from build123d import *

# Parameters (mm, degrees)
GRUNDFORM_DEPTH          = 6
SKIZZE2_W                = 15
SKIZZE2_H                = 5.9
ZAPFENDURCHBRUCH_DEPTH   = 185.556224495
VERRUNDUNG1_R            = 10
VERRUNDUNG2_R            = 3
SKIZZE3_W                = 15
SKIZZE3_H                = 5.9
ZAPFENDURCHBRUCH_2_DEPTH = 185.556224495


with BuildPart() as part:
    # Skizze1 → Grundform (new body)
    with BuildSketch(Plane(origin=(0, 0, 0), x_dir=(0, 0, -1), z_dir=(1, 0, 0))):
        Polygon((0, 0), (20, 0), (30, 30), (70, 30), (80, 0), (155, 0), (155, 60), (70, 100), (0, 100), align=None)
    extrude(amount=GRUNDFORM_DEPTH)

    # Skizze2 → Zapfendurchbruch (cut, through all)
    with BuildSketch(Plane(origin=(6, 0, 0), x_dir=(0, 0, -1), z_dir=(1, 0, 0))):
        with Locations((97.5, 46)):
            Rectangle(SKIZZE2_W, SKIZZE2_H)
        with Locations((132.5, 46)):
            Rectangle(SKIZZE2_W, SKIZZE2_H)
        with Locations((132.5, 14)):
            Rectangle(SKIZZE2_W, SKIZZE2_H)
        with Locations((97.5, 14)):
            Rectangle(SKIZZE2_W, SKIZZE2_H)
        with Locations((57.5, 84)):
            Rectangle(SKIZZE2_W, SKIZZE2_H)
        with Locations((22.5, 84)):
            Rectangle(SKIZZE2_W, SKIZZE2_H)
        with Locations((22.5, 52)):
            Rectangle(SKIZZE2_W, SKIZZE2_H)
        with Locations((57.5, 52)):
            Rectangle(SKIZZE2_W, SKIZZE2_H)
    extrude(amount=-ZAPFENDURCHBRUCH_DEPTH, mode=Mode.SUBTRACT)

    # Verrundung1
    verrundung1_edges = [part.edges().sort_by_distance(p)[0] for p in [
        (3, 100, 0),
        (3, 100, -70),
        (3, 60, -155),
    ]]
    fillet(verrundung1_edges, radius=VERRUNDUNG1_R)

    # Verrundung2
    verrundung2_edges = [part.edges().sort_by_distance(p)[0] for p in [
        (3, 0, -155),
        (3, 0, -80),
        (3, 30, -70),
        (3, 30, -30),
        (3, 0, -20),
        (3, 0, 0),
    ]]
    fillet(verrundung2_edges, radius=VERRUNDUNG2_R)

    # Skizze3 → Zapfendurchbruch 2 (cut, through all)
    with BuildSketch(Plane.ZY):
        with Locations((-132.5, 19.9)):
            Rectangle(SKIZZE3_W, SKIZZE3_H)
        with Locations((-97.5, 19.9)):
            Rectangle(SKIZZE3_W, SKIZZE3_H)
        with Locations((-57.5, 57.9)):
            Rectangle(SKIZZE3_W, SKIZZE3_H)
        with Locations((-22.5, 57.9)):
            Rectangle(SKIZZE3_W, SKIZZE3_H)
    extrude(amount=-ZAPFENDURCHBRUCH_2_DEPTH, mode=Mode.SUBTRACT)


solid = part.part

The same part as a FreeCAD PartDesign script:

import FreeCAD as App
import Part
import Sketcher

V = App.Vector
Q = App.Units.Quantity


def edges_at(feature, points):
    """Names of the edges that pass closest to the given points."""
    edges = feature.Shape.Edges
    near = lambda p: min(range(len(edges)), key=lambda i: edges[i].distToShape(Part.Vertex(*p))[0])
    return sorted({f"Edge{near(p) + 1}" for p in points})

doc = App.newDocument("Part")
body = doc.addObject("PartDesign::Body", "Body")

# Sketch on YZ plane
sketch1 = doc.addObject("Sketcher::SketchObject", "Sketch")
body.addObject(sketch1)
sketch1.AttachmentSupport = (doc.YZ_Plane, [""])
sketch1.MapMode = "FlatFace"
sketch1.addGeometry([
    Part.LineSegment(V(0, 0, 0), V(0, -20, 0)),  # 0
    Part.LineSegment(V(0, -20, 0), V(30, -30, 0)),  # 1
    Part.LineSegment(V(30, -30, 0), V(30, -70, 0)),  # 2
    Part.LineSegment(V(30, -70, 0), V(0, -80, 0)),  # 3
    Part.LineSegment(V(0, -80, 0), V(0, -155, 0)),  # 4
    Part.LineSegment(V(0, -155, 0), V(60, -155, 0)),  # 5
    Part.LineSegment(V(60, -155, 0), V(100, -70, 0)),  # 6
    Part.LineSegment(V(100, -70, 0), V(100, 0, 0)),  # 7
    Part.LineSegment(V(100, 0, 0), V(0, 0, 0)),  # 8
], False)
sketch1.addConstraint([
    Sketcher.Constraint("Coincident", 0, 2, 1, 1),
    Sketcher.Constraint("Coincident", 1, 2, 2, 1),
    Sketcher.Constraint("Coincident", 2, 2, 3, 1),
    Sketcher.Constraint("Coincident", 3, 2, 4, 1),
    Sketcher.Constraint("Coincident", 4, 2, 5, 1),
    Sketcher.Constraint("Coincident", 5, 2, 6, 1),
    Sketcher.Constraint("Coincident", 6, 2, 7, 1),
    Sketcher.Constraint("Coincident", 7, 2, 8, 1),
    Sketcher.Constraint("Coincident", 8, 2, 0, 1),
    Sketcher.Constraint("Vertical", 0),
    Sketcher.Constraint("Vertical", 2),
    Sketcher.Constraint("Vertical", 4),
    Sketcher.Constraint("Horizontal", 5),
    Sketcher.Constraint("Vertical", 7),
    Sketcher.Constraint("Horizontal", 8),
    Sketcher.Constraint("Coincident", 8, 2, -1, 1),
    Sketcher.Constraint("PointOnObject", 3, 2, -2),
    Sketcher.Constraint("Horizontal", 2, 2, 6, 2),
    Sketcher.Constraint("Equal", 1, 3),
    Sketcher.Constraint("DistanceX", 5, 1, 5, 2, Q("60 mm")),
    Sketcher.Constraint("DistanceX", 8, 2, 8, 1, Q("100 mm")),
    Sketcher.Constraint("DistanceY", 0, 2, 0, 1, Q("20 mm")),
    Sketcher.Constraint("DistanceY", 2, 2, 2, 1, Q("40 mm")),
    Sketcher.Constraint("DistanceY", 4, 2, 4, 1, Q("75 mm")),
    Sketcher.Constraint("DistanceY", 7, 1, 7, 2, Q("70 mm")),
    Sketcher.Constraint("DistanceX", -1, 1, 1, 2, Q("30 mm")),
])
pad1 = doc.addObject("PartDesign::Pad", "Pad")
body.addObject(pad1)
pad1.Profile = sketch1
pad1.Length = 6

# Sketch on YZ plane
sketch2 = doc.addObject("Sketcher::SketchObject", "Sketch001")
body.addObject(sketch2)
sketch2.AttachmentSupport = (doc.YZ_Plane, [""])
sketch2.MapMode = "FlatFace"
sketch2.AttachmentOffset = App.Placement(V(0, 0, 6), App.Rotation())
sketch2.addGeometry([
    Part.LineSegment(V(49, -90, 0), V(43, -90, 0)),  # 0
    Part.LineSegment(V(43, -90, 0), V(43, -105, 0)),  # 1
    Part.LineSegment(V(43, -105, 0), V(49, -105, 0)),  # 2
    Part.LineSegment(V(49, -105, 0), V(49, -90, 0)),  # 3
    Part.LineSegment(V(49, -125, 0), V(43, -125, 0)),  # 4
    Part.LineSegment(V(43, -125, 0), V(43, -140, 0)),  # 5
    Part.LineSegment(V(43, -140, 0), V(49, -140, 0)),  # 6
    Part.LineSegment(V(49, -140, 0), V(49, -125, 0)),  # 7
    Part.LineSegment(V(17, -125, 0), V(11, -125, 0)),  # 8
    Part.LineSegment(V(11, -125, 0), V(11, -140, 0)),  # 9
    Part.LineSegment(V(11, -140, 0), V(17, -140, 0)),  # 10
    Part.LineSegment(V(17, -140, 0), V(17, -125, 0)),  # 11
    Part.LineSegment(V(17, -90, 0), V(11, -90, 0)),  # 12
    Part.LineSegment(V(11, -90, 0), V(11, -105, 0)),  # 13
    Part.LineSegment(V(11, -105, 0), V(17, -105, 0)),  # 14
    Part.LineSegment(V(17, -105, 0), V(17, -90, 0)),  # 15
    Part.LineSegment(V(87, -50, 0), V(81, -50, 0)),  # 16
    Part.LineSegment(V(81, -50, 0), V(81, -65, 0)),  # 17
    Part.LineSegment(V(81, -65, 0), V(87, -65, 0)),  # 18
    Part.LineSegment(V(87, -65, 0), V(87, -50, 0)),  # 19
    Part.LineSegment(V(87, -15, 0), V(81, -15, 0)),  # 20
    Part.LineSegment(V(81, -15, 0), V(81, -30, 0)),  # 21
    Part.LineSegment(V(81, -30, 0), V(87, -30, 0)),  # 22
    Part.LineSegment(V(87, -30, 0), V(87, -15, 0)),  # 23
    Part.LineSegment(V(55, -15, 0), V(49, -15, 0)),  # 24
    Part.LineSegment(V(49, -15, 0), V(49, -30, 0)),  # 25
    Part.LineSegment(V(49, -30, 0), V(55, -30, 0)),  # 26
    Part.LineSegment(V(55, -30, 0), V(55, -15, 0)),  # 27
    Part.LineSegment(V(55, -50, 0), V(49, -50, 0)),  # 28
    Part.LineSegment(V(49, -50, 0), V(49, -65, 0)),  # 29
    Part.LineSegment(V(49, -65, 0), V(55, -65, 0)),  # 30
    Part.LineSegment(V(55, -65, 0), V(55, -50, 0)),  # 31
], False)
sketch2.addConstraint([
    Sketcher.Constraint("Coincident", 0, 2, 1, 1),
    Sketcher.Constraint("Coincident", 1, 2, 2, 1),
    Sketcher.Constraint("Coincident", 2, 2, 3, 1),
    Sketcher.Constraint("Coincident", 3, 2, 0, 1),
    Sketcher.Constraint("Coincident", 4, 2, 5, 1),
    Sketcher.Constraint("Coincident", 5, 2, 6, 1),
    Sketcher.Constraint("Coincident", 6, 2, 7, 1),
    Sketcher.Constraint("Coincident", 7, 2, 4, 1),
    Sketcher.Constraint("Coincident", 8, 2, 9, 1),
    Sketcher.Constraint("Coincident", 9, 2, 10, 1),
    Sketcher.Constraint("Coincident", 10, 2, 11, 1),
    Sketcher.Constraint("Coincident", 11, 2, 8, 1),
    Sketcher.Constraint("Coincident", 12, 2, 13, 1),
    Sketcher.Constraint("Coincident", 13, 2, 14, 1),
    Sketcher.Constraint("Coincident", 14, 2, 15, 1),
    Sketcher.Constraint("Coincident", 15, 2, 12, 1),
    Sketcher.Constraint("Coincident", 16, 2, 17, 1),
    Sketcher.Constraint("Coincident", 17, 2, 18, 1),
    Sketcher.Constraint("Coincident", 18, 2, 19, 1),
    Sketcher.Constraint("Coincident", 19, 2, 16, 1),
    Sketcher.Constraint("Coincident", 20, 2, 21, 1),
    Sketcher.Constraint("Coincident", 21, 2, 22, 1),
    Sketcher.Constraint("Coincident", 22, 2, 23, 1),
    Sketcher.Constraint("Coincident", 23, 2, 20, 1),
    Sketcher.Constraint("Coincident", 24, 2, 25, 1),
    Sketcher.Constraint("Coincident", 25, 2, 26, 1),
    Sketcher.Constraint("Coincident", 26, 2, 27, 1),
    Sketcher.Constraint("Coincident", 27, 2, 24, 1),
    Sketcher.Constraint("Coincident", 28, 2, 29, 1),
    Sketcher.Constraint("Coincident", 29, 2, 30, 1),
    Sketcher.Constraint("Coincident", 30, 2, 31, 1),
    Sketcher.Constraint("Coincident", 31, 2, 28, 1),
    Sketcher.Constraint("Horizontal", 0),
    Sketcher.Constraint("Vertical", 1),
    Sketcher.Constraint("Horizontal", 2),
    Sketcher.Constraint("Vertical", 3),
    Sketcher.Constraint("Horizontal", 4),
    Sketcher.Constraint("Vertical", 5),
    Sketcher.Constraint("Horizontal", 6),
    Sketcher.Constraint("Vertical", 7),
    Sketcher.Constraint("Horizontal", 8),
    Sketcher.Constraint("Vertical", 9),
    Sketcher.Constraint("Horizontal", 10),
    Sketcher.Constraint("Vertical", 11),
    Sketcher.Constraint("Horizontal", 12),
    Sketcher.Constraint("Vertical", 13),
    Sketcher.Constraint("Horizontal", 14),
    Sketcher.Constraint("Vertical", 15),
    Sketcher.Constraint("Horizontal", 16),
    Sketcher.Constraint("Vertical", 17),
    Sketcher.Constraint("Horizontal", 18),
    Sketcher.Constraint("Vertical", 19),
    Sketcher.Constraint("Horizontal", 20),
    Sketcher.Constraint("Vertical", 21),
    Sketcher.Constraint("Horizontal", 22),
    Sketcher.Constraint("Vertical", 23),
    Sketcher.Constraint("Horizontal", 24),
    Sketcher.Constraint("Vertical", 25),
    Sketcher.Constraint("Horizontal", 26),
    Sketcher.Constraint("Vertical", 27),
    Sketcher.Constraint("Horizontal", 28),
    Sketcher.Constraint("Vertical", 29),
    Sketcher.Constraint("Horizontal", 30),
    Sketcher.Constraint("Vertical", 31),
    Sketcher.Constraint("Horizontal", 7, 2, 8, 2),
    Sketcher.Constraint("Horizontal", 6, 2, 9, 2),
    Sketcher.Constraint("Horizontal", 3, 2, 12, 2),
    Sketcher.Constraint("Horizontal", 2, 2, 13, 2),
    Sketcher.Constraint("Horizontal", 23, 2, 24, 2),
    Sketcher.Constraint("Horizontal", 22, 2, 25, 2),
    Sketcher.Constraint("Horizontal", 19, 2, 28, 2),
    Sketcher.Constraint("Horizontal", 18, 2, 29, 2),
    Sketcher.Constraint("Vertical", 1, 2, 4, 2),
    Sketcher.Constraint("Vertical", 3, 2, 6, 2),
    Sketcher.Constraint("Vertical", 9, 2, 12, 2),
    Sketcher.Constraint("Vertical", 11, 2, 14, 2),
    Sketcher.Constraint("Vertical", 17, 2, 20, 2),
    Sketcher.Constraint("Vertical", 19, 2, 22, 2),
    Sketcher.Constraint("Vertical", 25, 2, 28, 2),
    Sketcher.Constraint("Vertical", 27, 2, 30, 2),
    Sketcher.Constraint("Equal", 6, 8),
    Sketcher.Constraint("Equal", 14, 16),
    Sketcher.Constraint("Equal", 22, 24),
    Sketcher.Constraint("Equal", 3, 5),
    Sketcher.Constraint("Equal", 15, 17),
    Sketcher.Constraint("Equal", 19, 21),
    Sketcher.Constraint("DistanceY", 1, 2, 1, 1, Q("15 mm")),
    Sketcher.Constraint("DistanceX", 0, 2, 0, 1, Q("5.9 mm")),
    Sketcher.Constraint("DistanceY", 0, 2, -1, 1, Q("90 mm")),
    Sketcher.Constraint("DistanceY", 4, 2, -1, 1, Q("125 mm")),
    Sketcher.Constraint("DistanceY", 16, 2, -1, 1, Q("50 mm")),
    Sketcher.Constraint("DistanceY", 20, 2, -1, 1, Q("15 mm")),
    Sketcher.Constraint("DistanceX", 8, 2, 4, 2, Q("32 mm")),
    Sketcher.Constraint("DistanceX", 0, 2, 16, 2, Q("38 mm")),
    Sketcher.Constraint("DistanceX", 24, 2, 20, 2, Q("32 mm")),
    Sketcher.Constraint("DistanceX", -1, 1, 0, 2, Q("43.05 mm")),
])
pocket1 = doc.addObject("PartDesign::Pocket", "Pocket")
body.addObject(pocket1)
pocket1.Profile = sketch2
pocket1.Type = "ThroughAll"
doc.recompute()

fillet = doc.addObject("PartDesign::Fillet", "Fillet")
body.addObject(fillet)
fillet.Base = (pocket1, edges_at(pocket1, [(3, 100, 0), (3, 100, -70), (3, 60, -155)]))
fillet.Radius = 10
doc.recompute()

fillet2 = doc.addObject("PartDesign::Fillet", "Fillet001")
body.addObject(fillet2)
fillet2.Base = (fillet, edges_at(fillet, [
    (3, 0, -155),
    (3, 0, -80),
    (3, 30, -70),
    (3, 30, -30),
    (3, 0, -20),
    (3, 0, 0),
]))
fillet2.Radius = 3

# Sketch on YZ plane
sketch3 = doc.addObject("Sketcher::SketchObject", "Sketch002")
body.addObject(sketch3)
sketch3.AttachmentSupport = (doc.YZ_Plane, [""])
sketch3.MapMode = "FlatFace"
sketch3.addGeometry([
    Part.LineSegment(V(23, -140, 0), V(17, -140, 0)),  # 0
    Part.LineSegment(V(17, -140, 0), V(17, -125, 0)),  # 1
    Part.LineSegment(V(17, -125, 0), V(23, -125, 0)),  # 2
    Part.LineSegment(V(23, -125, 0), V(23, -140, 0)),  # 3
    Part.LineSegment(V(23, -105, 0), V(17, -105, 0)),  # 4
    Part.LineSegment(V(17, -105, 0), V(17, -90, 0)),  # 5
    Part.LineSegment(V(17, -90, 0), V(23, -90, 0)),  # 6
    Part.LineSegment(V(23, -90, 0), V(23, -105, 0)),  # 7
    Part.LineSegment(V(61, -65, 0), V(55, -65, 0)),  # 8
    Part.LineSegment(V(55, -65, 0), V(55, -50, 0)),  # 9
    Part.LineSegment(V(55, -50, 0), V(61, -50, 0)),  # 10
    Part.LineSegment(V(61, -50, 0), V(61, -65, 0)),  # 11
    Part.LineSegment(V(61, -30, 0), V(55, -30, 0)),  # 12
    Part.LineSegment(V(55, -30, 0), V(55, -15, 0)),  # 13
    Part.LineSegment(V(55, -15, 0), V(61, -15, 0)),  # 14
    Part.LineSegment(V(61, -15, 0), V(61, -30, 0)),  # 15
], False)
sketch3.addConstraint([
    Sketcher.Constraint("Coincident", 0, 2, 1, 1),
    Sketcher.Constraint("Coincident", 1, 2, 2, 1),
    Sketcher.Constraint("Coincident", 2, 2, 3, 1),
    Sketcher.Constraint("Coincident", 3, 2, 0, 1),
    Sketcher.Constraint("Coincident", 4, 2, 5, 1),
    Sketcher.Constraint("Coincident", 5, 2, 6, 1),
    Sketcher.Constraint("Coincident", 6, 2, 7, 1),
    Sketcher.Constraint("Coincident", 7, 2, 4, 1),
    Sketcher.Constraint("Coincident", 8, 2, 9, 1),
    Sketcher.Constraint("Coincident", 9, 2, 10, 1),
    Sketcher.Constraint("Coincident", 10, 2, 11, 1),
    Sketcher.Constraint("Coincident", 11, 2, 8, 1),
    Sketcher.Constraint("Coincident", 12, 2, 13, 1),
    Sketcher.Constraint("Coincident", 13, 2, 14, 1),
    Sketcher.Constraint("Coincident", 14, 2, 15, 1),
    Sketcher.Constraint("Coincident", 15, 2, 12, 1),
    Sketcher.Constraint("Horizontal", 0),
    Sketcher.Constraint("Vertical", 1),
    Sketcher.Constraint("Horizontal", 2),
    Sketcher.Constraint("Vertical", 3),
    Sketcher.Constraint("Horizontal", 4),
    Sketcher.Constraint("Vertical", 5),
    Sketcher.Constraint("Horizontal", 6),
    Sketcher.Constraint("Vertical", 7),
    Sketcher.Constraint("Horizontal", 8),
    Sketcher.Constraint("Vertical", 9),
    Sketcher.Constraint("Horizontal", 10),
    Sketcher.Constraint("Vertical", 11),
    Sketcher.Constraint("Horizontal", 12),
    Sketcher.Constraint("Vertical", 13),
    Sketcher.Constraint("Horizontal", 14),
    Sketcher.Constraint("Vertical", 15),
    Sketcher.Constraint("Vertical", 1, 2, 4, 2),
    Sketcher.Constraint("Vertical", 3, 2, 6, 2),
    Sketcher.Constraint("Vertical", 9, 2, 12, 2),
    Sketcher.Constraint("Vertical", 11, 2, 14, 2),
    Sketcher.Constraint("Equal", 6, 8),
    Sketcher.Constraint("Equal", 3, 5),
    Sketcher.Constraint("Equal", 7, 9),
    Sketcher.Constraint("Equal", 11, 13),
    Sketcher.Constraint("DistanceY", 1, 1, 1, 2, Q("15 mm")),
    Sketcher.Constraint("DistanceX", 0, 2, 0, 1, Q("5.9 mm")),
    Sketcher.Constraint("DistanceY", 0, 2, -1, 1, Q("140 mm")),
    Sketcher.Constraint("DistanceY", 4, 2, -1, 1, Q("105 mm")),
    Sketcher.Constraint("DistanceY", 8, 2, -1, 1, Q("65 mm")),
    Sketcher.Constraint("DistanceY", 12, 2, -1, 1, Q("30 mm")),
    Sketcher.Constraint("DistanceX", 5, 2, 8, 2, Q("38 mm")),
    Sketcher.Constraint("DistanceX", -1, 1, 0, 2, Q("16.95 mm")),
])
pocket2 = doc.addObject("PartDesign::Pocket", "Pocket001")
body.addObject(pocket2)
pocket2.Profile = sketch3
pocket2.Type = "ThroughAll"
pocket2.Reversed = True

doc.recompute()
